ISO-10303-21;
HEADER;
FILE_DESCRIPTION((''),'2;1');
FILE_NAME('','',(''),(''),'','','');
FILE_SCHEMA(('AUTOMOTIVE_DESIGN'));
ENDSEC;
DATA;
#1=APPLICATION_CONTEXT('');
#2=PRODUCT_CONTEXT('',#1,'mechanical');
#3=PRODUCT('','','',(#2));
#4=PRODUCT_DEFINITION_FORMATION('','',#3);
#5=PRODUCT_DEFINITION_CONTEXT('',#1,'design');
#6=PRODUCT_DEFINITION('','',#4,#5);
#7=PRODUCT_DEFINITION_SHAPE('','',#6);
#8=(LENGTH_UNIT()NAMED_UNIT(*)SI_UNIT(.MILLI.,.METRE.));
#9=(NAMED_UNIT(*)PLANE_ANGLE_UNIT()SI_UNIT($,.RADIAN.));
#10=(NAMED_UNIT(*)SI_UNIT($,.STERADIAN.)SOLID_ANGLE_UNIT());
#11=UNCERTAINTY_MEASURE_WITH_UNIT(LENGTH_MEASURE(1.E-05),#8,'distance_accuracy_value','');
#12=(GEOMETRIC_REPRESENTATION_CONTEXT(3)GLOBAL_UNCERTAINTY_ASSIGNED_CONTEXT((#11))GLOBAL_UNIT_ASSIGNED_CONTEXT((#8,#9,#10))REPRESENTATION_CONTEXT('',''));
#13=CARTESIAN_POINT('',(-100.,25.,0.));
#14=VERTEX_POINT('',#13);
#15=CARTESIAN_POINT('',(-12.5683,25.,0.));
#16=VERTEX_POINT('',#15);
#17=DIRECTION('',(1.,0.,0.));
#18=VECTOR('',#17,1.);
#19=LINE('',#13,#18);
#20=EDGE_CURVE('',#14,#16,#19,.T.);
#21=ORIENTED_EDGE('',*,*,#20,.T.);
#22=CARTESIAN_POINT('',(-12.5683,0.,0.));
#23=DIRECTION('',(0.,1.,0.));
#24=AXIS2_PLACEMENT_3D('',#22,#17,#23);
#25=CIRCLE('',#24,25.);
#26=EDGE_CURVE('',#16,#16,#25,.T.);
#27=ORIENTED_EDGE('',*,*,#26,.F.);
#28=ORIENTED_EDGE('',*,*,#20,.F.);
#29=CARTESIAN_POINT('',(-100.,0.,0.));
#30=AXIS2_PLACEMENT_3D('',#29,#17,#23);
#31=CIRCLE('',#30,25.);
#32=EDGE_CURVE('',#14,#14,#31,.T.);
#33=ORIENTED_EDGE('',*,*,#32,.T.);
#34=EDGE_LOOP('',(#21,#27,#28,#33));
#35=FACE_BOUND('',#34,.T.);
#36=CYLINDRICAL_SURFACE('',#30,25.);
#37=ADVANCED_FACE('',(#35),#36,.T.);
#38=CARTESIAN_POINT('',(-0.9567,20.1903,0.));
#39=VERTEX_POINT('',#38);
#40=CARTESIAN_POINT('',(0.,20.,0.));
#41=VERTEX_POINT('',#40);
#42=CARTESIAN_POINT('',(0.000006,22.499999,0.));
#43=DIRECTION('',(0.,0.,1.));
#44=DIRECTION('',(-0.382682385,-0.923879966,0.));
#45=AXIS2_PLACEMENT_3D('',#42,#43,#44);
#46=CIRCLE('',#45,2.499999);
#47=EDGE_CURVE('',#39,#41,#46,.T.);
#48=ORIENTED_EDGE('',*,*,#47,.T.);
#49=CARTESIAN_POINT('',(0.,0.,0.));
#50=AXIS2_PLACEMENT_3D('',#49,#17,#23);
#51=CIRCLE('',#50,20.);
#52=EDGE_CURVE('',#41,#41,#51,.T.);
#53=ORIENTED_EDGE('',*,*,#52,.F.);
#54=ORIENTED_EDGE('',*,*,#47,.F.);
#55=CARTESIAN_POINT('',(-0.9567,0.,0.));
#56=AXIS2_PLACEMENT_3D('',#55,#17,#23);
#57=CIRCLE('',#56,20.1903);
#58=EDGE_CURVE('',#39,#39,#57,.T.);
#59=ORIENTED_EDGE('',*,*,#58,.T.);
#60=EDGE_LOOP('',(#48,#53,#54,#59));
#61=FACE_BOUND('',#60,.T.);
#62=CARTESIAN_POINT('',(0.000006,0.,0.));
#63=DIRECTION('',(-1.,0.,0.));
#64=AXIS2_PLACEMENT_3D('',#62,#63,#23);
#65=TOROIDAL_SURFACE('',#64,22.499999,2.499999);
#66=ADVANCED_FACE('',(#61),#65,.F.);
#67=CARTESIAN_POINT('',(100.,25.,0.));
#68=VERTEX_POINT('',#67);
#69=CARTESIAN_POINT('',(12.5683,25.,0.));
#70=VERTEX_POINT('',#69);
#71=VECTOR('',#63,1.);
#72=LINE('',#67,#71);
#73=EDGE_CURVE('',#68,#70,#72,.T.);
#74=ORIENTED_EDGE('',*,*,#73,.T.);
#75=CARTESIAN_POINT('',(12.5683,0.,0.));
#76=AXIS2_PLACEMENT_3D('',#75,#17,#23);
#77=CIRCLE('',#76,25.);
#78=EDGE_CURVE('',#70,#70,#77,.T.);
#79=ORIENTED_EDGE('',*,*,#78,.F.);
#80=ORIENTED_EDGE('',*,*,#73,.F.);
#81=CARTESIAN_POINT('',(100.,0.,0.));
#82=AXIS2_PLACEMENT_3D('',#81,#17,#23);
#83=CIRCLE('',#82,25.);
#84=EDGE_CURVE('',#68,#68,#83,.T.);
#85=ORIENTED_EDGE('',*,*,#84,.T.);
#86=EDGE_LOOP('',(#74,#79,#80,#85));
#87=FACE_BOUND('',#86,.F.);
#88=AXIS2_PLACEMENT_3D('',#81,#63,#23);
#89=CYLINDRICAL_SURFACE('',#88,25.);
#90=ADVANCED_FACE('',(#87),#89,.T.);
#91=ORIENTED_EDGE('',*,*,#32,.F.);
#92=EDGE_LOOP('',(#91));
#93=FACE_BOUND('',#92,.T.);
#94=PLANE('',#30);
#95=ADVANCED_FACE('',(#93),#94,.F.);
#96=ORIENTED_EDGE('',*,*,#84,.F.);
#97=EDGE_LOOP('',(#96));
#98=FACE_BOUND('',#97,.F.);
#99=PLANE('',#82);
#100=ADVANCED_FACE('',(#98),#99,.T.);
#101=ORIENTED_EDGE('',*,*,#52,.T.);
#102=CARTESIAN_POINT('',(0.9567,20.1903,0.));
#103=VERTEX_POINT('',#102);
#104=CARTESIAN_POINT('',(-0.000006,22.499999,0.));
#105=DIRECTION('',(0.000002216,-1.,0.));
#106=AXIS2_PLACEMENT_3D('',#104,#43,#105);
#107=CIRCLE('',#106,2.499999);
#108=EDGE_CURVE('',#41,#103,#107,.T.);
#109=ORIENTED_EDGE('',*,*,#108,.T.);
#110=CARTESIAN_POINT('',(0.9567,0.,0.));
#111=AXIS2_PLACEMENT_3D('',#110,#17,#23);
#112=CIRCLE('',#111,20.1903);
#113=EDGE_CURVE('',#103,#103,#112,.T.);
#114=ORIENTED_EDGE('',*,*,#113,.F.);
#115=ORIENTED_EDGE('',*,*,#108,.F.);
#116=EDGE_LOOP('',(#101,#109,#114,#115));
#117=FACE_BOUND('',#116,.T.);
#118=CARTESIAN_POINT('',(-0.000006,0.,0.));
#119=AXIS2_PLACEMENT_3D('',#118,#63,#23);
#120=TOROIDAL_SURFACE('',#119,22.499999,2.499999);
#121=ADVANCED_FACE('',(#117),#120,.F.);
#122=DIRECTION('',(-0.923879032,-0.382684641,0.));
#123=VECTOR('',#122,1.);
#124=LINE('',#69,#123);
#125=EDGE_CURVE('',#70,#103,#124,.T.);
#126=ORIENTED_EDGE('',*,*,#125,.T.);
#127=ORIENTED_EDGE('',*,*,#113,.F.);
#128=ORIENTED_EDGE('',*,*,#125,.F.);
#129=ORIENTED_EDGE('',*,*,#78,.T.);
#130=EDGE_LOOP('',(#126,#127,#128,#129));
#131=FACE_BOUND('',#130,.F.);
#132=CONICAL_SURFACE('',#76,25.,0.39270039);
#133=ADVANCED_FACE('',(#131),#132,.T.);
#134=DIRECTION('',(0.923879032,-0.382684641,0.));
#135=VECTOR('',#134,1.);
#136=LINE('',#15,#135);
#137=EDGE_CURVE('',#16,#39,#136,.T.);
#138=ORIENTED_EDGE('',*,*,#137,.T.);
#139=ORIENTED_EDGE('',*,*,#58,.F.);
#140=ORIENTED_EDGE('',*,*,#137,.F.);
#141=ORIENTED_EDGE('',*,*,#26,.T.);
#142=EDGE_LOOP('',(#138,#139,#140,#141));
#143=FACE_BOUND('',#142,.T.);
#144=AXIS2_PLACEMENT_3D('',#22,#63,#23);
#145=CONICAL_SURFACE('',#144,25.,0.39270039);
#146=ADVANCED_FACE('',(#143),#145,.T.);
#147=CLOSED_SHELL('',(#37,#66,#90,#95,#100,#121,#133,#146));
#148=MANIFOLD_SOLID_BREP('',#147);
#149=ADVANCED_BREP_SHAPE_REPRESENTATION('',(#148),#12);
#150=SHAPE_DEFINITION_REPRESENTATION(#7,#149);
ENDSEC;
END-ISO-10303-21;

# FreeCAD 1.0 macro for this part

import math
import FreeCAD as App
import Part
import Sketcher

V = App.Vector
Q = App.Units.Quantity

doc = App.newDocument("Part")
body = doc.addObject("PartDesign::Body", "Body")

sketch1 = doc.addObject("Sketcher::SketchObject", "Sketch")
body.addObject(sketch1)
sketch1.AttachmentSupport = (doc.XY_Plane, [""])
sketch1.MapMode = "FlatFace"
sketch1.addGeometry([
    Part.LineSegment(V(-100, 0, 0), V(100, 0, 0)),
    Part.LineSegment(V(100, 0, 0), V(100, 25, 0)),
    Part.LineSegment(V(100, 25, 0), V(12.6, 25, 0)),
    Part.LineSegment(V(12.6, 25, 0), V(1, 20.2, 0)),
    Part.ArcOfCircle(Part.Circle(V(0, 22.5, 0), V(0, 0, 1), 2.5), math.radians(-90), math.radians(-68)),
    Part.ArcOfCircle(Part.Circle(V(0, 22.5, 0), V(0, 0, 1), 2.5), math.radians(-112), math.radians(-90)),
    Part.LineSegment(V(-1, 20.2, 0), V(-12.6, 25, 0)),
    Part.LineSegment(V(-12.6, 25, 0), V(-100, 25, 0)),
    Part.LineSegment(V(-100, 25, 0), V(-100, 0, 0)),
], False)
sketch1.addConstraint([
    Sketcher.Constraint("Coincident", 0, 2, 1, 1),
    Sketcher.Constraint("Coincident", 1, 2, 2, 1),
    Sketcher.Constraint("Coincident", 2, 2, 3, 1),
    Sketcher.Constraint("Tangent", 3, 2, 4, 2),
    Sketcher.Constraint("Tangent", 4, 1, 5, 2),
    Sketcher.Constraint("Tangent", 5, 1, 6, 1),
    Sketcher.Constraint("Coincident", 6, 2, 7, 1),
    Sketcher.Constraint("Coincident", 7, 2, 8, 1),
    Sketcher.Constraint("Coincident", 8, 2, 0, 1),
    Sketcher.Constraint("Horizontal", 0),
    Sketcher.Constraint("Vertical", 1),
    Sketcher.Constraint("Horizontal", 2),
    Sketcher.Constraint("Horizontal", 7),
    Sketcher.Constraint("Vertical", 8),
    Sketcher.Constraint("Equal", 4, 5),
    Sketcher.Constraint("Symmetric", 0, 2, 8, 2, -1, 1),
    Sketcher.Constraint("Symmetric", 3, 2, 5, 1, -2),
    Sketcher.Constraint("PointOnObject", 4, 1, -2),
    Sketcher.Constraint("Horizontal", 2, 2, 6, 2),
    Sketcher.Constraint("Radius", 4, Q("2.5 mm")),
    Sketcher.Constraint("DistanceX", 0, 1, 0, 2, Q("200 mm")),
    Sketcher.Constraint("DistanceY", 4, 1, 2, 2, Q("5 mm")),
    Sketcher.Constraint("DistanceY", 1, 1, 1, 2, Q("25 mm")),
    Sketcher.Constraint("Angle", 3, Q("-157.5 deg")),
])
revolution = doc.addObject("PartDesign::Revolution", "Revolution")
body.addObject(revolution)
revolution.Profile = sketch1
revolution.ReferenceAxis = (sketch1, ["H_Axis"])
revolution.Angle = 360

doc.recompute()
